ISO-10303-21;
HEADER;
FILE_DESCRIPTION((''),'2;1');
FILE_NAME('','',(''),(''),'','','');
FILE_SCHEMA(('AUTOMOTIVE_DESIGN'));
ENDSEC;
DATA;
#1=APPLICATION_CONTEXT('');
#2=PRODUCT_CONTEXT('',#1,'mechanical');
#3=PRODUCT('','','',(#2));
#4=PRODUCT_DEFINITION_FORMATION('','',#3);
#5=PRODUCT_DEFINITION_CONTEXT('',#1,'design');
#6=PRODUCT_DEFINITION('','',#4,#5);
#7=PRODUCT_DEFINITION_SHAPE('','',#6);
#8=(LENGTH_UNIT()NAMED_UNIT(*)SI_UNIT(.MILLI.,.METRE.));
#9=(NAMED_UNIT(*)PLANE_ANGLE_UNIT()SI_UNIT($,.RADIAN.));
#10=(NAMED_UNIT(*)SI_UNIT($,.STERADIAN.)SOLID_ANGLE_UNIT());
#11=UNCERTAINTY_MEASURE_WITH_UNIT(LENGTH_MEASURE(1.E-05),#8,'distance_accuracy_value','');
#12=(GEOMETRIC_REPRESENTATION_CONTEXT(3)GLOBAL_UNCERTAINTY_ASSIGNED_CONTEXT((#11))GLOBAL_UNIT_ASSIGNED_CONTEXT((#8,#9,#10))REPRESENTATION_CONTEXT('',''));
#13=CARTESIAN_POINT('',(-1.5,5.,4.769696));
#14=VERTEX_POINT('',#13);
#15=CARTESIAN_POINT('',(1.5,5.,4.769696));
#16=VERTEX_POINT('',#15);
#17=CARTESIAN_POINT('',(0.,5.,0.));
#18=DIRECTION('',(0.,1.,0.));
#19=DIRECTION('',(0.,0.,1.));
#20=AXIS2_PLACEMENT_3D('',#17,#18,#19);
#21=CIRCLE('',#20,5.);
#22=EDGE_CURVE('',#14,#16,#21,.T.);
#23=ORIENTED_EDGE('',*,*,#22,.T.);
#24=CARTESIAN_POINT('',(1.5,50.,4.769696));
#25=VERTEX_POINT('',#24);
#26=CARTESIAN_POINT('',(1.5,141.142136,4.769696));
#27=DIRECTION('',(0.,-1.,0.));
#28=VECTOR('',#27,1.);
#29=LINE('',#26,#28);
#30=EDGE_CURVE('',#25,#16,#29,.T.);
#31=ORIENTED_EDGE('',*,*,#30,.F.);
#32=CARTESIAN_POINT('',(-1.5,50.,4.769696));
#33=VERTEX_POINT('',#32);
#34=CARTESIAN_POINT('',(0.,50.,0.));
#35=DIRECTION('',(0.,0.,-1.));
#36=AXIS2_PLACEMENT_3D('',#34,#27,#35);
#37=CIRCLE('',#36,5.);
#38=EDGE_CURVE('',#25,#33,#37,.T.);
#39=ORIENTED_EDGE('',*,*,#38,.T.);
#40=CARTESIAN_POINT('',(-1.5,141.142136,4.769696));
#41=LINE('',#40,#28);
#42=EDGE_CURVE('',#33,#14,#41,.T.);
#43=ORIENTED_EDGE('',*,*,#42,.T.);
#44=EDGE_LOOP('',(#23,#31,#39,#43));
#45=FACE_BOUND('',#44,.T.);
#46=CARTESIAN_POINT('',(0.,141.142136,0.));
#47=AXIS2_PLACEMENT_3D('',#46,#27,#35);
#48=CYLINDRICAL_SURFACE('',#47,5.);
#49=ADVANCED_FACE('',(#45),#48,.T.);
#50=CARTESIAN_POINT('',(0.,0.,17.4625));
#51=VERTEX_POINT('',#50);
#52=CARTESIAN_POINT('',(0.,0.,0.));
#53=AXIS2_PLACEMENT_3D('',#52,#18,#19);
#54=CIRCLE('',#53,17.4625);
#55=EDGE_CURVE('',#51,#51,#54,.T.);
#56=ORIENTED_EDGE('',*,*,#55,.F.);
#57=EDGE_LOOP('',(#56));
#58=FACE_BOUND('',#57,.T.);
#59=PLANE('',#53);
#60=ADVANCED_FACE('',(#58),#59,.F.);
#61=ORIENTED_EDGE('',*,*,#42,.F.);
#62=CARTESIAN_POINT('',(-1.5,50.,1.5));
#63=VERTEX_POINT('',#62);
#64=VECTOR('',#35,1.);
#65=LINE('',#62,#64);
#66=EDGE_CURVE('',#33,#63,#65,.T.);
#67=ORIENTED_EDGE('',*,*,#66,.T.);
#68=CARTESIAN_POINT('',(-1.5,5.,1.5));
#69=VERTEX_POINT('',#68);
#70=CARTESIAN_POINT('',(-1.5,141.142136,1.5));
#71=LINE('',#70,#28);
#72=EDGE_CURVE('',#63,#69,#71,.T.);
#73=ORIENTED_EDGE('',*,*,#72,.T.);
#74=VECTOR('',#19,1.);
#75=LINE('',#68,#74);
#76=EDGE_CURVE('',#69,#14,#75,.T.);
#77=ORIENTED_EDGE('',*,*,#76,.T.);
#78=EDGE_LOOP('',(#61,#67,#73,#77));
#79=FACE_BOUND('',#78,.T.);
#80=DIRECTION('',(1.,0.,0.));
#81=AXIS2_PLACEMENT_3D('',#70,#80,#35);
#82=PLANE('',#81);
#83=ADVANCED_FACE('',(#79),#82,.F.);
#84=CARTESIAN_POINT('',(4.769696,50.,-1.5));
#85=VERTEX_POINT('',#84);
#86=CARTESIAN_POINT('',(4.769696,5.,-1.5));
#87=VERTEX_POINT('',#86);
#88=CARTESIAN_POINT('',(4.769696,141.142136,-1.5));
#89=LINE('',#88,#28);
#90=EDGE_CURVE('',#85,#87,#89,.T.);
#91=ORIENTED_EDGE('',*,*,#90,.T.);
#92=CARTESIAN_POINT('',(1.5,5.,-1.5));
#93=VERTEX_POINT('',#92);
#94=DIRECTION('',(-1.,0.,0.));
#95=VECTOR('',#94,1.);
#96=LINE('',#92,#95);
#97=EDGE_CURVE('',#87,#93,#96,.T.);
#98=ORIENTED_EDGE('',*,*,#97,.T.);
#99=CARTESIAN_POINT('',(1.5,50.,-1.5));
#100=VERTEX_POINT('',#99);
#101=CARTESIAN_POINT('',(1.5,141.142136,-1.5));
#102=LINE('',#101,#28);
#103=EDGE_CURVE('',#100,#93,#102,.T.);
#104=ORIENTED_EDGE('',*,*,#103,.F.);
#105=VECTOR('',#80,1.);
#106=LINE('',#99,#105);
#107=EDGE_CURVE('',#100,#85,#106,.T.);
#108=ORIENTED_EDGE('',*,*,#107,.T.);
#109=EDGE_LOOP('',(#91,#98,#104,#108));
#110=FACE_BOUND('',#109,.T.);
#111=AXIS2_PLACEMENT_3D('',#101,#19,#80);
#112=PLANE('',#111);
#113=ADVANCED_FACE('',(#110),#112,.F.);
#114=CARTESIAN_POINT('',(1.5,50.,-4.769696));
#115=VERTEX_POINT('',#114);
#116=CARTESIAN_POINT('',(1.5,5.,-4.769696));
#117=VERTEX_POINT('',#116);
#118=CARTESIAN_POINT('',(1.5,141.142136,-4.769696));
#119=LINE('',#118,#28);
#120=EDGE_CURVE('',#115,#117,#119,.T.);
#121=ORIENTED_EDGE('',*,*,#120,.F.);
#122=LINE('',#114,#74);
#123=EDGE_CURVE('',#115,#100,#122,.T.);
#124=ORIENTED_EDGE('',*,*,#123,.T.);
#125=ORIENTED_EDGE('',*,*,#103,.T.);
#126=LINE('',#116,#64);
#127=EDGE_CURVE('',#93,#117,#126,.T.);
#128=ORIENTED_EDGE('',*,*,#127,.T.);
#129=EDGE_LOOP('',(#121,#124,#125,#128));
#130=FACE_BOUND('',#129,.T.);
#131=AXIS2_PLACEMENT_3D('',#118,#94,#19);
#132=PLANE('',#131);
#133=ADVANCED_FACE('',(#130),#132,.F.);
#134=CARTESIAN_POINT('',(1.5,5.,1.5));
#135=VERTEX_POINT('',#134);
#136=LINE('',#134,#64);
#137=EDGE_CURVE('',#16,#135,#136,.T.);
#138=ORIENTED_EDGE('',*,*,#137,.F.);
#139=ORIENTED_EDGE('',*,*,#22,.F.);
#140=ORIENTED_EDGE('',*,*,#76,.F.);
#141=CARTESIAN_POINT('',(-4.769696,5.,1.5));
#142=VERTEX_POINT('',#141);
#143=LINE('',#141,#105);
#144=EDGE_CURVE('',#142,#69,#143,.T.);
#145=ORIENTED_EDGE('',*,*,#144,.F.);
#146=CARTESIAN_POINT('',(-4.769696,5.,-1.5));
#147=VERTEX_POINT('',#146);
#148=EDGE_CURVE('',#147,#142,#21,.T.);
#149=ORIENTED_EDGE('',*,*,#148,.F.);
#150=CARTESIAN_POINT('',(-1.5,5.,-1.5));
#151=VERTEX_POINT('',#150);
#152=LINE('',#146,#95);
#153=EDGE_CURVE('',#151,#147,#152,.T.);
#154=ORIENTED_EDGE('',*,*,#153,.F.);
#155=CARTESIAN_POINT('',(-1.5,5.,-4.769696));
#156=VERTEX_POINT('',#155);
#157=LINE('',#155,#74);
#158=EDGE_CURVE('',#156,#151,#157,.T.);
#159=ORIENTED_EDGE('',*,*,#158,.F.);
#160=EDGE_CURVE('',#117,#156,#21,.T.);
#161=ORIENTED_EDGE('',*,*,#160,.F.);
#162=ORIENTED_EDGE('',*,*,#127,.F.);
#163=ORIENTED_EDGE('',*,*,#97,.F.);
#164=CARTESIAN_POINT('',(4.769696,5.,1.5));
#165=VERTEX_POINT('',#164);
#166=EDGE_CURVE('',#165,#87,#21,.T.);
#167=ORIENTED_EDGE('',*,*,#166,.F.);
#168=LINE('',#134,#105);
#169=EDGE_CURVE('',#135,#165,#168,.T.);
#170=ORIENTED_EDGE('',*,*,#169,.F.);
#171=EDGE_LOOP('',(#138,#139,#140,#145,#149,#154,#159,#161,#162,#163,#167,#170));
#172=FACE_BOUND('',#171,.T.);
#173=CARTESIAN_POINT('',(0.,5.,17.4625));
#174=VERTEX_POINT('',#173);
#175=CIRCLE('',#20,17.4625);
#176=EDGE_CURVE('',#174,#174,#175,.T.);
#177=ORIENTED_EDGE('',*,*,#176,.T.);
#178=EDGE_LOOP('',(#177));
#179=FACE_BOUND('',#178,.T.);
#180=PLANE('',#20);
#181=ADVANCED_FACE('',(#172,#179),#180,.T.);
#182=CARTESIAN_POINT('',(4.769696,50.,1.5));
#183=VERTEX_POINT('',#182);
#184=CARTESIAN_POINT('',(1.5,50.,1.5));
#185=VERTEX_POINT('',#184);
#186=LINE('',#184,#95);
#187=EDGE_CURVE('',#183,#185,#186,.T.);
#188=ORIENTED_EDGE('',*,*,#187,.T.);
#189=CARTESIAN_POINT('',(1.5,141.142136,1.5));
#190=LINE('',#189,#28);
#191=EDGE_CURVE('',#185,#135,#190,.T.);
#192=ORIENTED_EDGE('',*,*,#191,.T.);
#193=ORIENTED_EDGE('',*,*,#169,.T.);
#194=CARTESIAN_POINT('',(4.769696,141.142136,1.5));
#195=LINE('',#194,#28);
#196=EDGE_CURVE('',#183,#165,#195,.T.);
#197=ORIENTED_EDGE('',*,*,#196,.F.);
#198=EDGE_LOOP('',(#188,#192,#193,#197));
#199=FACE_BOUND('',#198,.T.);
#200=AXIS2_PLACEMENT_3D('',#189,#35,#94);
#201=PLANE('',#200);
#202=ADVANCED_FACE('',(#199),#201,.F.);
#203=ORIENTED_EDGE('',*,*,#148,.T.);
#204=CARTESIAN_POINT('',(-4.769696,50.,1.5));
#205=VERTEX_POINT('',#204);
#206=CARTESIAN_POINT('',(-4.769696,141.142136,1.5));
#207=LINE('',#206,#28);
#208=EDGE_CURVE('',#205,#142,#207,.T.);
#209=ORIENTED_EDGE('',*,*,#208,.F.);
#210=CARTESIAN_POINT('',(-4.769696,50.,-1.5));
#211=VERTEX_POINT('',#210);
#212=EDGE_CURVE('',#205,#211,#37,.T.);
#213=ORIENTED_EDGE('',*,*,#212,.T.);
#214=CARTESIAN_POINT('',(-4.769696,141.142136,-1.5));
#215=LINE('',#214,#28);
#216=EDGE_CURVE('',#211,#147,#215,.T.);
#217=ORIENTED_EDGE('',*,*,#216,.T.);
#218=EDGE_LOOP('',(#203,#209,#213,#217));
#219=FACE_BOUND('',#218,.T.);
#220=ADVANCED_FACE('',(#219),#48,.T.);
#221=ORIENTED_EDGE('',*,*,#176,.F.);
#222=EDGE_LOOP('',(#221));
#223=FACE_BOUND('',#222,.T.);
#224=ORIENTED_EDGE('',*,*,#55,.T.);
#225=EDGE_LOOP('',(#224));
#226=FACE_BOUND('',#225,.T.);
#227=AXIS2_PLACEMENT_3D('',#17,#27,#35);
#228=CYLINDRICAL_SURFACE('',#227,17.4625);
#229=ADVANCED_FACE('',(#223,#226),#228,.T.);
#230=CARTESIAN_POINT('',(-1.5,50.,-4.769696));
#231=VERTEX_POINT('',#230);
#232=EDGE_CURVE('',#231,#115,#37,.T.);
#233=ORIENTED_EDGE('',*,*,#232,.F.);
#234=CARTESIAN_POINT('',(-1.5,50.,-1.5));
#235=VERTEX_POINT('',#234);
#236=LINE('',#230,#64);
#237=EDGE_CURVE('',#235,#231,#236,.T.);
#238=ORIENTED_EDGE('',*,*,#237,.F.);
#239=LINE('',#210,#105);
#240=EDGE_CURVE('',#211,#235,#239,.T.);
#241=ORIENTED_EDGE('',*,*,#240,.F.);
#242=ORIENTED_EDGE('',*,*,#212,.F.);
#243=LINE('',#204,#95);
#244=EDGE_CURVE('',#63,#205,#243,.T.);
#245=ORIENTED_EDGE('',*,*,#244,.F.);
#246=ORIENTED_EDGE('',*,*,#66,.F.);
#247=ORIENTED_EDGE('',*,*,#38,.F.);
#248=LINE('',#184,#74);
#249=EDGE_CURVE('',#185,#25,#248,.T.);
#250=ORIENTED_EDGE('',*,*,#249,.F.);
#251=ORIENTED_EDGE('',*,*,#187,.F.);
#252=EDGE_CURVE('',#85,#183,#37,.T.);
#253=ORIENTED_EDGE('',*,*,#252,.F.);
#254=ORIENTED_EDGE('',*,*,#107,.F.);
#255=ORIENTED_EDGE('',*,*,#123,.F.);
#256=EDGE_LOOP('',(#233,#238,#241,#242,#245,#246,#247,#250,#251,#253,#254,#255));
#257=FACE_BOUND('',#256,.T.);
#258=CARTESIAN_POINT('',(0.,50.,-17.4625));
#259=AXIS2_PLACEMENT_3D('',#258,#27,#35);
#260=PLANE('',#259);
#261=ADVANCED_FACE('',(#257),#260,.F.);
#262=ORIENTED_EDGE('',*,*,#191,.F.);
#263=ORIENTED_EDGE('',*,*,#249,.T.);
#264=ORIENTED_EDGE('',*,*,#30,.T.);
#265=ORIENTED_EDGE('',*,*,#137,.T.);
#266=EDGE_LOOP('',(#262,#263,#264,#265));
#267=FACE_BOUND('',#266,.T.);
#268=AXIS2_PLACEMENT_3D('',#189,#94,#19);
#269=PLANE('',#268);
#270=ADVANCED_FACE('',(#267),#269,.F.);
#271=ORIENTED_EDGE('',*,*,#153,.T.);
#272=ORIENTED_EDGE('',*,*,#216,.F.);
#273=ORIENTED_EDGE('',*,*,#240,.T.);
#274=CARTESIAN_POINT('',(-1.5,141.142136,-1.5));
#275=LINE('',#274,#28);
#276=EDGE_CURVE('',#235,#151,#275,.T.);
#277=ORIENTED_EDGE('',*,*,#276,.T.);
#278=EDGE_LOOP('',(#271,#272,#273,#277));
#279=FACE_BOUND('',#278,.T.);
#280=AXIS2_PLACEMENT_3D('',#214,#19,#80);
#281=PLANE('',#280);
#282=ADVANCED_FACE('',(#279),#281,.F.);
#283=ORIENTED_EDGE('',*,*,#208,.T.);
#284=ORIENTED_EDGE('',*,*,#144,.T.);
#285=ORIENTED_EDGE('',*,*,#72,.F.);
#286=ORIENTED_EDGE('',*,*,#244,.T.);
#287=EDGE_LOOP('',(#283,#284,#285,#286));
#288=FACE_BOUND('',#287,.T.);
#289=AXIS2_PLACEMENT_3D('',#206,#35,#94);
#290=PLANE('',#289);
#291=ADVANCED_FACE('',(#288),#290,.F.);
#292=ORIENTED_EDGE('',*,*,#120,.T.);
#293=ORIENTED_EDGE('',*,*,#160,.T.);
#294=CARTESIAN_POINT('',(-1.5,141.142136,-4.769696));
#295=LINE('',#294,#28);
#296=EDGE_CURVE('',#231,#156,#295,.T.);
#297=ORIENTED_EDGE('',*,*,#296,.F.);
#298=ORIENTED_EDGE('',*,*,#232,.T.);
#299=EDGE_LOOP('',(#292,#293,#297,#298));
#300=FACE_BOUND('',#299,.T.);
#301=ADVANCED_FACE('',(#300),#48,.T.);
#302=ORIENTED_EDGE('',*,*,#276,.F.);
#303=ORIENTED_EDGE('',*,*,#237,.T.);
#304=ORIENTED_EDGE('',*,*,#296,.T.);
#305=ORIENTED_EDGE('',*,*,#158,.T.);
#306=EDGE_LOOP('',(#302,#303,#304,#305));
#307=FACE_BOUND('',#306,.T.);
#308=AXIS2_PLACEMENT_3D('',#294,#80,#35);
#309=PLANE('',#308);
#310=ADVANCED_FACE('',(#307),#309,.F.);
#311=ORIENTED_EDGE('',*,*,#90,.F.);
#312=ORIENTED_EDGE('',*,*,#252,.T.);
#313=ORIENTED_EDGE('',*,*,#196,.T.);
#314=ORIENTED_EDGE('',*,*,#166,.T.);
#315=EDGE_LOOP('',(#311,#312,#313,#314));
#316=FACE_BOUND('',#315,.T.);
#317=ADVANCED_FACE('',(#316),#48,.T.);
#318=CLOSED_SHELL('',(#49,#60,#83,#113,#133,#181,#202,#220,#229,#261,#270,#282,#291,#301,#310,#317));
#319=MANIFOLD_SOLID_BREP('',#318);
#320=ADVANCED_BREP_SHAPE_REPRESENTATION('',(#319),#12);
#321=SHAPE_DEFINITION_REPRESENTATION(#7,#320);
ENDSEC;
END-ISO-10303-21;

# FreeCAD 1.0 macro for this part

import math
import FreeCAD as App
import Part
import Sketcher
Q = App.Units.Quantity

doc = App.newDocument("Part")
body = doc.addObject("PartDesign::Body", "Body")

sketch1 = body.newObject("Sketcher::SketchObject", "Sketch")
sketch1.AttachmentSupport = (doc.getObject("XZ_Plane"), [""])
sketch1.MapMode = "FlatFace"
sketch1.addGeometry(Part.Circle(App.Vector(0, 0, 0), App.Vector(0, 0, 1), 17.4625), False)
sketch1.addConstraint([
    Sketcher.Constraint("Coincident", 0, 3, -1, 1),
    Sketcher.Constraint("Diameter", 0, Q("34.925 mm")),
])
pad1 = body.newObject("PartDesign::Pad", "Pad")
pad1.Profile = sketch1
pad1.Length = 5
pad1.Reversed = True
body2 = doc.addObject("PartDesign::Body", "Body001")

sketch2 = body2.newObject("Sketcher::SketchObject", "Sketch001")
sketch2.AttachmentSupport = (doc.getObject("XZ_Plane001"), [""])
sketch2.MapMode = "FlatFace"
sketch2.AttachmentOffset = App.Placement(App.Vector(0, 0, -127), App.Rotation())
sketch2.addGeometry(Part.Circle(App.Vector(0, 0, 0), App.Vector(0, 0, 1), 17.4625), False)
sketch2.addConstraint([
    Sketcher.Constraint("Coincident", 0, 3, -1, 1),
    Sketcher.Constraint("Diameter", 0, Q("34.925 mm")),
])
pad2 = body2.newObject("PartDesign::Pad", "Pad001")
pad2.Profile = sketch2
pad2.Length = 5
pad2.Reversed = True
body.AllowCompound = True
doc.recompute()

boolean = body.newObject("PartDesign::Boolean", "Boolean")
boolean.Type = "Fuse"
boolean.addObjects([body2])

sketch3 = body.newObject("Sketcher::SketchObject", "Sketch002")
sketch3.AttachmentSupport = (doc.getObject("XZ_Plane"), [""])
sketch3.MapMode = "FlatFace"
sketch3.AttachmentOffset = App.Placement(App.Vector(0, 0, -5), App.Rotation())
sketch3.addGeometry([
    Part.LineSegment(App.Vector(-4.769696, 1.5, 0), App.Vector(-1.5, 1.5, 0)),
    Part.LineSegment(App.Vector(-1.5, 1.5, 0), App.Vector(-1.5, 4.769696, 0)),
    Part.ArcOfCircle(Part.Circle(App.Vector(0, 0, 0), App.Vector(0, 0, 1), 5), math.radians(72.542397), math.radians(107.457603)),
    Part.LineSegment(App.Vector(1.5, 4.769696, 0), App.Vector(1.5, 1.5, 0)),
    Part.LineSegment(App.Vector(1.5, 1.5, 0), App.Vector(4.769696, 1.5, 0)),
    Part.ArcOfCircle(Part.Circle(App.Vector(0, 0, 0), App.Vector(0, 0, 1), 5), math.radians(-17.457603), math.radians(17.457603)),
    Part.LineSegment(App.Vector(4.769696, -1.5, 0), App.Vector(1.5, -1.5, 0)),
    Part.LineSegment(App.Vector(1.5, -1.5, 0), App.Vector(1.5, -4.769696, 0)),
    Part.ArcOfCircle(Part.Circle(App.Vector(0, 0, 0), App.Vector(0, 0, 1), 5), math.radians(-107.457603), math.radians(-72.542397)),
    Part.LineSegment(App.Vector(-1.5, -4.769696, 0), App.Vector(-1.5, -1.5, 0)),
    Part.LineSegment(App.Vector(-1.5, -1.5, 0), App.Vector(-4.769696, -1.5, 0)),
    Part.ArcOfCircle(Part.Circle(App.Vector(0, 0, 0), App.Vector(0, 0, 1), 5), math.radians(162.542397), math.radians(197.457603)),
], False)
sketch3.addConstraint([
    Sketcher.Constraint("Coincident", 0, 2, 1, 1),
    Sketcher.Constraint("Coincident", 1, 2, 2, 2),
    Sketcher.Constraint("Coincident", 2, 1, 3, 1),
    Sketcher.Constraint("Coincident", 3, 2, 4, 1),
    Sketcher.Constraint("Coincident", 4, 2, 5, 2),
    Sketcher.Constraint("Coincident", 5, 1, 6, 1),
    Sketcher.Constraint("Coincident", 6, 2, 7, 1),
    Sketcher.Constraint("Coincident", 7, 2, 8, 2),
    Sketcher.Constraint("Coincident", 8, 1, 9, 1),
    Sketcher.Constraint("Coincident", 9, 2, 10, 1),
    Sketcher.Constraint("Coincident", 10, 2, 11, 2),
    Sketcher.Constraint("Coincident", 11, 1, 0, 1),
    Sketcher.Constraint("Horizontal", 0),
    Sketcher.Constraint("Vertical", 1),
    Sketcher.Constraint("Vertical", 3),
    Sketcher.Constraint("Horizontal", 4),
    Sketcher.Constraint("Horizontal", 6),
    Sketcher.Constraint("Vertical", 7),
    Sketcher.Constraint("Vertical", 9),
    Sketcher.Constraint("Horizontal", 10),
    Sketcher.Constraint("Coincident", 2, 3, -1, 1),
    Sketcher.Constraint("Coincident", 5, 3, -1, 1),
    Sketcher.Constraint("Coincident", 8, 3, -1, 1),
    Sketcher.Constraint("Coincident", 11, 3, -1, 1),
    Sketcher.Constraint("Equal", 2, 5),
    Sketcher.Constraint("Equal", 5, 8),
    Sketcher.Constraint("Equal", 8, 11),
    Sketcher.Constraint("Symmetric", 0, 2, 6, 2, -1, 1),
    Sketcher.Constraint("Symmetric", 3, 2, 9, 2, -1, 1),
    Sketcher.Constraint("Symmetric", 0, 2, 3, 2, -2),
    Sketcher.Constraint("Equal", 10, 1),
    Sketcher.Constraint("Radius", 2, Q("5 mm")),
    Sketcher.Constraint("DistanceX", 1, 2, 2, 1, Q("3 mm")),
])
pad3 = body.newObject("PartDesign::Pad", "Pad002")
pad3.Profile = sketch3
pad3.Length = 122
pad3.Reversed = True

sketch4 = body.newObject("Sketcher::SketchObject", "Sketch003")
sketch4.AttachmentSupport = (doc.getObject("XY_Plane"), [""])
sketch4.MapMode = "FlatFace"
sketch4.addGeometry([
    Part.LineSegment(App.Vector(-17.4625, 132, 0), App.Vector(-17.4625, 50, 0)),
    Part.LineSegment(App.Vector(-17.4625, 50, 0), App.Vector(17.4625, 50, 0)),
    Part.LineSegment(App.Vector(17.4625, 50, 0), App.Vector(17.4625, 132, 0)),
    Part.LineSegment(App.Vector(17.4625, 132, 0), App.Vector(-17.4625, 132, 0)),
], False)
sketch4.addConstraint([
    Sketcher.Constraint("Coincident", 0, 2, 1, 1),
    Sketcher.Constraint("Coincident", 1, 2, 2, 1),
    Sketcher.Constraint("Coincident", 2, 2, 3, 1),
    Sketcher.Constraint("Coincident", 3, 2, 0, 1),
    Sketcher.Constraint("Vertical", 0),
    Sketcher.Constraint("Horizontal", 1),
    Sketcher.Constraint("Vertical", 2),
    Sketcher.Constraint("Horizontal", 3),
    Sketcher.Constraint("DistanceY", 0, 2, 0, 1, Q("82 mm")),
    Sketcher.Constraint("DistanceY", -1, 1, 0, 2, Q("50 mm")),
    Sketcher.Constraint("DistanceX", 1, 1, 1, 2, Q("34.925 mm")),
    Sketcher.Constraint("DistanceX", 0, 2, -1, 1, Q("17.4625 mm")),
])
pocket1 = body.newObject("PartDesign::Pocket", "Pocket")
pocket1.Profile = sketch4
pocket1.Type = "ThroughAll"
pocket1.Midplane = True

doc.recompute()
